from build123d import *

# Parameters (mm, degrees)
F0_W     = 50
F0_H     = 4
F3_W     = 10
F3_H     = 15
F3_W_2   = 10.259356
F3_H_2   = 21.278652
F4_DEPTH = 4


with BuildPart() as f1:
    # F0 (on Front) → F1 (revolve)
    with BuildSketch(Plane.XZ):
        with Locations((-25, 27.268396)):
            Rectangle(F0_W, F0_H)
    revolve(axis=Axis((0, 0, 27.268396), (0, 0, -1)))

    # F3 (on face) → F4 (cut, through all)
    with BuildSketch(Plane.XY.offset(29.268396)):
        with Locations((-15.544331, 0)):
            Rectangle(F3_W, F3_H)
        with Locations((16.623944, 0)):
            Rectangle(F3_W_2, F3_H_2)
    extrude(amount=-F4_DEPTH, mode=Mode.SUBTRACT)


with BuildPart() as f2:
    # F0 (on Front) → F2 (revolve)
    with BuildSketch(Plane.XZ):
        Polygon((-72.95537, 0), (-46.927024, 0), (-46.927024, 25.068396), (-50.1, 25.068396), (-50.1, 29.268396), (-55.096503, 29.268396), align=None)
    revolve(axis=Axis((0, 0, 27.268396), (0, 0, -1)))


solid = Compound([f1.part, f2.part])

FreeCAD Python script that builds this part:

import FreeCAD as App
import Part
import Sketcher


def add_polygon(sketch, points):
    """Adds a closed chain of lines whose ends are joined by coincident constraints."""
    first, n = sketch.GeometryCount, len(points)
    for a, b in zip(points, points[1:] + points[:1]):
        sketch.addGeometry(Part.LineSegment(App.Vector(*a, 0), App.Vector(*b, 0)), False)
    for i in range(n):
        sketch.addConstraint(Sketcher.Constraint("Coincident", first + i, 2, first + (i + 1) % n, 1))

doc = App.newDocument("Part")
body = doc.addObject("PartDesign::Body", "Body")

sketch1 = body.newObject("Sketcher::SketchObject", "Sketch")
sketch1.AttachmentSupport = (doc.getObject("XZ_Plane"), [""])
sketch1.MapMode = "FlatFace"
add_polygon(sketch1, [(-50, 29.3), (-50, 25.3), (0, 25.3), (0, 29.3)])
sketch1.addConstraint(Sketcher.Constraint("Vertical", 0))
sketch1.addConstraint(Sketcher.Constraint("Horizontal", 1))
sketch1.addConstraint(Sketcher.Constraint("Vertical", 2))
sketch1.addConstraint(Sketcher.Constraint("Horizontal", 3))
sketch1.addConstraint(Sketcher.Constraint("PointOnObject", 1, 2, -2))
sketch1.addConstraint(Sketcher.Constraint("DistanceX", 1, 1, 1, 2, 50.0))
sketch1.addConstraint(Sketcher.Constraint("DistanceY", 0, 2, 0, 1, 4.0))
sketch1.addConstraint(Sketcher.Constraint("DistanceY", -1, 1, 0, 2, 25.268396))
revolution = body.newObject("PartDesign::Revolution", "Revolution")
revolution.Profile = sketch1
revolution.ReferenceAxis = (sketch1, ["V_Axis"])
revolution.Angle = 360

sketch2 = body.newObject("Sketcher::SketchObject", "Sketch001")
sketch2.AttachmentSupport = (doc.getObject("XY_Plane"), [""])
sketch2.MapMode = "FlatFace"
sketch2.AttachmentOffset = App.Placement(App.Vector(0, 0, 29.268396), App.Rotation())
add_polygon(sketch2, [(-21, 8), (-21, -8), (-11, -8), (-11, 8)])
add_polygon(sketch2, [(11, 11), (11, -11), (22, -11), (22, 11)])
sketch2.addConstraint(Sketcher.Constraint("Vertical", 0))
sketch2.addConstraint(Sketcher.Constraint("Horizontal", 1))
sketch2.addConstraint(Sketcher.Constraint("Vertical", 2))
sketch2.addConstraint(Sketcher.Constraint("Horizontal", 3))
sketch2.addConstraint(Sketcher.Constraint("Vertical", 4))
sketch2.addConstraint(Sketcher.Constraint("Horizontal", 5))
sketch2.addConstraint(Sketcher.Constraint("Vertical", 6))
sketch2.addConstraint(Sketcher.Constraint("Horizontal", 7))
sketch2.addConstraint(Sketcher.Constraint("DistanceX", 1, 1, 1, 2, 10.0))
sketch2.addConstraint(Sketcher.Constraint("DistanceY", 0, 2, 0, 1, 15.0))
sketch2.addConstraint(Sketcher.Constraint("DistanceY", 0, 2, -1, 1, 7.5))
sketch2.addConstraint(Sketcher.Constraint("DistanceX", 5, 1, 5, 2, 10.259356))
sketch2.addConstraint(Sketcher.Constraint("DistanceY", 4, 2, 4, 1, 21.278652))
sketch2.addConstraint(Sketcher.Constraint("DistanceX", 0, 2, -1, 1, 20.544331))
sketch2.addConstraint(Sketcher.Constraint("DistanceX", -1, 1, 5, 2, 21.753622))
sketch2.addConstraint(Sketcher.Constraint("DistanceY", 4, 2, -1, 1, 10.639326))
pocket1 = body.newObject("PartDesign::Pocket", "Pocket")
pocket1.Profile = sketch2
pocket1.Type = "ThroughAll"
body2 = doc.addObject("PartDesign::Body", "Body001")

sketch3 = body2.newObject("Sketcher::SketchObject", "Sketch002")
sketch3.AttachmentSupport = (doc.getObject("XZ_Plane001"), [""])
sketch3.MapMode = "FlatFace"
add_polygon(sketch3, [(-73, 0), (-46.9, 0), (-46.9, 25.1), (-50.1, 25.1), (-50.1, 29.3), (-55.1, 29.3)])
sketch3.addConstraint(Sketcher.Constraint("Horizontal", 0))
sketch3.addConstraint(Sketcher.Constraint("Vertical", 1))
sketch3.addConstraint(Sketcher.Constraint("Horizontal", 2))
sketch3.addConstraint(Sketcher.Constraint("Vertical", 3))
sketch3.addConstraint(Sketcher.Constraint("Horizontal", 4))
sketch3.addConstraint(Sketcher.Constraint("PointOnObject", 0, 2, -1))
sketch3.addConstraint(Sketcher.Constraint("DistanceY", 3, 1, 3, 2, 4.2))
sketch3.addConstraint(Sketcher.Constraint("DistanceX", 2, 2, -1, 1, 50.1))
sketch3.addConstraint(Sketcher.Constraint("DistanceX", 0, 1, 0, 2, 26.028346))
sketch3.addConstraint(Sketcher.Constraint("DistanceX", 2, 2, 2, 1, 3.172976))
sketch3.addConstraint(Sketcher.Constraint("DistanceX", 4, 2, 4, 1, 4.996503))
sketch3.addConstraint(Sketcher.Constraint("DistanceY", 1, 1, 1, 2, 25.068396))
revolution2 = body2.newObject("PartDesign::Revolution", "Revolution001")
revolution2.Profile = sketch3
revolution2.ReferenceAxis = (sketch3, ["V_Axis"])
revolution2.Angle = 360

doc.recompute()
